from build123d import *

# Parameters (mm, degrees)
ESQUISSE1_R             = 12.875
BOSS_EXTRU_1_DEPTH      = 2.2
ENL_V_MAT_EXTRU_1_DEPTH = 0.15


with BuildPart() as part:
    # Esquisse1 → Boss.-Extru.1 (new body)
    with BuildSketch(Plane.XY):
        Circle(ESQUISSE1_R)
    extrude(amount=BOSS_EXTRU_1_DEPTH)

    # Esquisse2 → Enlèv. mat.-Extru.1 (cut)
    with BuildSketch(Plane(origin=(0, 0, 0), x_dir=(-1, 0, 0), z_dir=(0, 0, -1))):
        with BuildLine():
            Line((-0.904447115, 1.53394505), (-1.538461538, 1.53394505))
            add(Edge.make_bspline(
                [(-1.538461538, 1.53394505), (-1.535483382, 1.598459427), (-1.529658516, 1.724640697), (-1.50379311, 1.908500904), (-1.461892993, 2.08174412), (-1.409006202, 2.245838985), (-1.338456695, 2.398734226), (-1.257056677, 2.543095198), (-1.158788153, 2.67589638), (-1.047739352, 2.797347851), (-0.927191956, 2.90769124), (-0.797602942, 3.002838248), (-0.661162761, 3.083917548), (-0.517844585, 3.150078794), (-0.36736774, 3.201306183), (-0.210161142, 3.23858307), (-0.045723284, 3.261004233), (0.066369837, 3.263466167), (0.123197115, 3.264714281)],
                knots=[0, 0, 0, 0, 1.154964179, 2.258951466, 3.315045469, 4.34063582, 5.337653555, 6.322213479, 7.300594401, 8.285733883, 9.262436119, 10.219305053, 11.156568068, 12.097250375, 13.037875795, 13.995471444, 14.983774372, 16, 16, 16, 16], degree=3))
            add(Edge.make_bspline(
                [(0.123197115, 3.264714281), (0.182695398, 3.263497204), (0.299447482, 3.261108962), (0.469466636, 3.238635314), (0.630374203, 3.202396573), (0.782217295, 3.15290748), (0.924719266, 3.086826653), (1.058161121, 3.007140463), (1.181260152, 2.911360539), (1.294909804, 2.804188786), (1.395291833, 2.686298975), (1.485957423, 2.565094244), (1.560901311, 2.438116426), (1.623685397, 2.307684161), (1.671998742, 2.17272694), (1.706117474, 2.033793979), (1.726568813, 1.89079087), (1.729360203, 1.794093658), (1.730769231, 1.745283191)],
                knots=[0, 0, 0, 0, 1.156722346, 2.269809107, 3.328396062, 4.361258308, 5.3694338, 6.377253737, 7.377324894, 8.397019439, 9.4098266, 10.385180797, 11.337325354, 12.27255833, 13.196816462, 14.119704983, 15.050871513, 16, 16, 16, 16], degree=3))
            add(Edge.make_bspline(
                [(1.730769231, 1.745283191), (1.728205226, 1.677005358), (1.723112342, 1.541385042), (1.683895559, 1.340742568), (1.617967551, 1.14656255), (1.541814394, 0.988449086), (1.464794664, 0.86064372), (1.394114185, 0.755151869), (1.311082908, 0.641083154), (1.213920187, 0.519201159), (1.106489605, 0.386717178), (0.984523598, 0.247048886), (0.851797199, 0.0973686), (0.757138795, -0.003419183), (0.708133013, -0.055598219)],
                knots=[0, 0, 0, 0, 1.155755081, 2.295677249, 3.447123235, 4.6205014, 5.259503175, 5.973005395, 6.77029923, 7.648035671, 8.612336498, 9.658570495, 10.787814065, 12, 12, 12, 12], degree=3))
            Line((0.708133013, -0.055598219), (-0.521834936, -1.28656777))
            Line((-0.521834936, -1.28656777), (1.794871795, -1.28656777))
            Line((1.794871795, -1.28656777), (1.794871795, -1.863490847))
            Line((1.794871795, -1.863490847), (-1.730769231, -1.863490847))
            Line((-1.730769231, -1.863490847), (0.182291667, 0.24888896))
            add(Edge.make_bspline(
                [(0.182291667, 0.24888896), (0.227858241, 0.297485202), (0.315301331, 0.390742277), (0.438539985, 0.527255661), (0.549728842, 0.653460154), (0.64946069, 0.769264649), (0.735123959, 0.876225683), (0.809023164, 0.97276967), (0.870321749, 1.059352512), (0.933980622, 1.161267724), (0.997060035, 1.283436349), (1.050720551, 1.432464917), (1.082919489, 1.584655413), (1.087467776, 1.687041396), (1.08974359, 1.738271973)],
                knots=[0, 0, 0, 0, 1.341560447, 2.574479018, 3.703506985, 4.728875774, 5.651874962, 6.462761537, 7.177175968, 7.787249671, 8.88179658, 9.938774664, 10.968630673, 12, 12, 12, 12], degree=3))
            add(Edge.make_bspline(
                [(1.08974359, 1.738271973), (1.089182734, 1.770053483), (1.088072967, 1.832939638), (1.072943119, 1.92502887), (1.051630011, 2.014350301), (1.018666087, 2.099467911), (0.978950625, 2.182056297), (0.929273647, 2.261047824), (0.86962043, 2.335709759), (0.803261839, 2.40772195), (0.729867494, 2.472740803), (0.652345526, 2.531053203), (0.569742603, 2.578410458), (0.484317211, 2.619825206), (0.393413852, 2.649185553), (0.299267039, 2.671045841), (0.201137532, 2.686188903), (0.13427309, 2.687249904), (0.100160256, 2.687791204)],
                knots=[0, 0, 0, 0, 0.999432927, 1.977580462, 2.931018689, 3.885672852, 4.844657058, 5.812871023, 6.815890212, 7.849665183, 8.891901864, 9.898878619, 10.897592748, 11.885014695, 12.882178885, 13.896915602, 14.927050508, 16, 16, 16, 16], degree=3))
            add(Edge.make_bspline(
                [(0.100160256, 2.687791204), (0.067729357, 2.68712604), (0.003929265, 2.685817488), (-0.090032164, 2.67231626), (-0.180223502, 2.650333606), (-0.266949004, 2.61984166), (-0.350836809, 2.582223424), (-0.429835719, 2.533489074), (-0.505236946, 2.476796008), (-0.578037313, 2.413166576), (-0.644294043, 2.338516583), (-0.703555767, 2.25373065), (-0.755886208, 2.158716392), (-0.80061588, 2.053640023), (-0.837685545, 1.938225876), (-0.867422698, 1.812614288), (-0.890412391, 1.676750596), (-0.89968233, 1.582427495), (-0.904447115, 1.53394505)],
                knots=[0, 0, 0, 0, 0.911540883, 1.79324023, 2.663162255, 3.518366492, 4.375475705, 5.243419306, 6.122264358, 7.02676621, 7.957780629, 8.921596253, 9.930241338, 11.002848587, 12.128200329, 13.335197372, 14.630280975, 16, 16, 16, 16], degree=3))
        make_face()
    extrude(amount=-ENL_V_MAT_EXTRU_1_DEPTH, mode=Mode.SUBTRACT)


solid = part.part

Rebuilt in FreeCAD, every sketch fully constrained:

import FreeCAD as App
import Part
import Sketcher
Q = App.Units.Quantity

doc = App.newDocument("Part")
params = doc.addObject("Spreadsheet::Sheet", "Params")
for row, (alias, value) in enumerate([
    ("sketch1_diameter", "25.75 mm"),
    ("pad1_length", "2.2 mm"),
    ("pocket1_length", "0.15 mm"),
], start=1):
    params.set(f"A{row}", alias)
    params.set(f"B{row}", "=" + value)
    params.setAlias(f"B{row}", alias)

body = doc.addObject("PartDesign::Body", "Body")

sketch1 = doc.addObject("Sketcher::SketchObject", "Sketch")
body.addObject(sketch1)
sketch1.AttachmentSupport = (doc.XY_Plane, [""])
sketch1.MapMode = "FlatFace"
sketch1.addGeometry(Part.Circle(App.Vector(0, 0, 0), App.Vector(0, 0, 1), 13), False)
sketch1.addConstraint(Sketcher.Constraint("Coincident", 0, 3, -1, 1))
sketch1.addConstraint(Sketcher.Constraint("Diameter", 0, Q("25.75 mm")))
sketch1.setExpression("Constraints[1]", "Params.sketch1_diameter")
pad1 = doc.addObject("PartDesign::Pad", "Pad")
body.addObject(pad1)
pad1.Profile = sketch1
pad1.setExpression("Length", "Params.pad1_length")

sketch2 = doc.addObject("Sketcher::SketchObject", "Sketch001")
body.addObject(sketch2)
sketch2.AttachmentSupport = (doc.XY_Plane, [""])
sketch2.MapMode = "FlatFace"
sketch2.addGeometry(Part.LineSegment(App.Vector(1.538462, 1.533945, 0), App.Vector(0.904447, 1.533945, 0)), False)
sketch2.addGeometry(Part.BSplineCurve([App.Vector(-0.10016, 2.687791, 0), App.Vector(-0.067729, 2.687126, 0), App.Vector(-0.003929, 2.685817, 0), App.Vector(0.090032, 2.672316, 0), App.Vector(0.180224, 2.650334, 0), App.Vector(0.266949, 2.619842, 0), App.Vector(0.350837, 2.582223, 0), App.Vector(0.429836, 2.533489, 0), App.Vector(0.505237, 2.476796, 0), App.Vector(0.578037, 2.413167, 0), App.Vector(0.644294, 2.338517, 0), App.Vector(0.703556, 2.253731, 0), App.Vector(0.755886, 2.158716, 0), App.Vector(0.800616, 2.05364, 0), App.Vector(0.837686, 1.938226, 0), App.Vector(0.867423, 1.812614, 0), App.Vector(0.890412, 1.676751, 0), App.Vector(0.899682, 1.582427, 0), App.Vector(0.904447, 1.533945, 0)], [4, 1, 1, 1, 1, 1, 1, 1, 1, 1, 1, 1, 1, 1, 1, 1, 4], [0, 0.911540883, 1.79324023, 2.663162255, 3.518366492, 4.375475705, 5.243419306, 6.122264358, 7.02676621, 7.957780629, 8.921596253, 9.930241338, 11.002848587, 12.128200329, 13.335197372, 14.630280975, 16], False, 3, [1, 1, 1, 1, 1, 1, 1, 1, 1, 1, 1, 1, 1, 1, 1, 1, 1, 1, 1], False), False)
sketch2.addGeometry(Part.BSplineCurve([App.Vector(-1.089744, 1.738272, 0), App.Vector(-1.089183, 1.770053, 0), App.Vector(-1.088073, 1.83294, 0), App.Vector(-1.072943, 1.925029, 0), App.Vector(-1.05163, 2.01435, 0), App.Vector(-1.018666, 2.099468, 0), App.Vector(-0.978951, 2.182056, 0), App.Vector(-0.929274, 2.261048, 0), App.Vector(-0.86962, 2.33571, 0), App.Vector(-0.803262, 2.407722, 0), App.Vector(-0.729867, 2.472741, 0), App.Vector(-0.652346, 2.531053, 0), App.Vector(-0.569743, 2.57841, 0), App.Vector(-0.484317, 2.619825, 0), App.Vector(-0.393414, 2.649186, 0), App.Vector(-0.299267, 2.671046, 0), App.Vector(-0.201138, 2.686189, 0), App.Vector(-0.134273, 2.68725, 0), App.Vector(-0.10016, 2.687791, 0)], [4, 1, 1, 1, 1, 1, 1, 1, 1, 1, 1, 1, 1, 1, 1, 1, 4], [0, 0.999432927, 1.977580462, 2.931018689, 3.885672852, 4.844657058, 5.812871023, 6.815890212, 7.849665183, 8.891901864, 9.898878619, 10.897592748, 11.885014695, 12.882178885, 13.896915602, 14.927050508, 16], False, 3, [1, 1, 1, 1, 1, 1, 1, 1, 1, 1, 1, 1, 1, 1, 1, 1, 1, 1, 1], False), False)
sketch2.addGeometry(Part.BSplineCurve([App.Vector(-0.182292, 0.248889, 0), App.Vector(-0.227858, 0.297485, 0), App.Vector(-0.315301, 0.390742, 0), App.Vector(-0.43854, 0.527256, 0), App.Vector(-0.549729, 0.65346, 0), App.Vector(-0.649461, 0.769265, 0), App.Vector(-0.735124, 0.876226, 0), App.Vector(-0.809023, 0.97277, 0), App.Vector(-0.870322, 1.059353, 0), App.Vector(-0.933981, 1.161268, 0), App.Vector(-0.99706, 1.283436, 0), App.Vector(-1.050721, 1.432465, 0), App.Vector(-1.082919, 1.584655, 0), App.Vector(-1.087468, 1.687041, 0), App.Vector(-1.089744, 1.738272, 0)], [4, 1, 1, 1, 1, 1, 1, 1, 1, 1, 1, 1, 4], [0, 1.341560447, 2.574479018, 3.703506985, 4.728875774, 5.651874962, 6.462761537, 7.177175968, 7.787249671, 8.88179658, 9.938774664, 10.968630673, 12], False, 3, [1, 1, 1, 1, 1, 1, 1, 1, 1, 1, 1, 1, 1, 1, 1], False), False)
sketch2.addGeometry(Part.LineSegment(App.Vector(-0.182292, 0.248889, 0), App.Vector(1.730769, -1.863491, 0)), False)
sketch2.addGeometry(Part.LineSegment(App.Vector(1.730769, -1.863491, 0), App.Vector(-1.794872, -1.863491, 0)), False)
sketch2.addGeometry(Part.LineSegment(App.Vector(-1.794872, -1.863491, 0), App.Vector(-1.794872, -1.286568, 0)), False)
sketch2.addGeometry(Part.LineSegment(App.Vector(-1.794872, -1.286568, 0), App.Vector(0.521835, -1.286568, 0)), False)
sketch2.addGeometry(Part.LineSegment(App.Vector(0.521835, -1.286568, 0), App.Vector(-0.708133, -0.055598, 0)), False)
sketch2.addGeometry(Part.BSplineCurve([App.Vector(-1.730769, 1.745283, 0), App.Vector(-1.728205, 1.677005, 0), App.Vector(-1.723112, 1.541385, 0), App.Vector(-1.683896, 1.340743, 0), App.Vector(-1.617968, 1.146563, 0), App.Vector(-1.541814, 0.988449, 0), App.Vector(-1.464795, 0.860644, 0), App.Vector(-1.394114, 0.755152, 0), App.Vector(-1.311083, 0.641083, 0), App.Vector(-1.21392, 0.519201, 0), App.Vector(-1.10649, 0.386717, 0), App.Vector(-0.984524, 0.247049, 0), App.Vector(-0.851797, 0.097369, 0), App.Vector(-0.757139, -0.003419, 0), App.Vector(-0.708133, -0.055598, 0)], [4, 1, 1, 1, 1, 1, 1, 1, 1, 1, 1, 1, 4], [0, 1.155755081, 2.295677249, 3.447123235, 4.6205014, 5.259503175, 5.973005395, 6.77029923, 7.648035671, 8.612336498, 9.658570495, 10.787814065, 12], False, 3, [1, 1, 1, 1, 1, 1, 1, 1, 1, 1, 1, 1, 1, 1, 1], False), False)
sketch2.addGeometry(Part.BSplineCurve([App.Vector(-0.123197, 3.264714, 0), App.Vector(-0.182695, 3.263497, 0), App.Vector(-0.299447, 3.261109, 0), App.Vector(-0.469467, 3.238635, 0), App.Vector(-0.630374, 3.202397, 0), App.Vector(-0.782217, 3.152907, 0), App.Vector(-0.924719, 3.086827, 0), App.Vector(-1.058161, 3.00714, 0), App.Vector(-1.18126, 2.911361, 0), App.Vector(-1.29491, 2.804189, 0), App.Vector(-1.395292, 2.686299, 0), App.Vector(-1.485957, 2.565094, 0), App.Vector(-1.560901, 2.438116, 0), App.Vector(-1.623685, 2.307684, 0), App.Vector(-1.671999, 2.172727, 0), App.Vector(-1.706117, 2.033794, 0), App.Vector(-1.726569, 1.890791, 0), App.Vector(-1.72936, 1.794094, 0), App.Vector(-1.730769, 1.745283, 0)], [4, 1, 1, 1, 1, 1, 1, 1, 1, 1, 1, 1, 1, 1, 1, 1, 4], [0, 1.156722346, 2.269809107, 3.328396062, 4.361258308, 5.3694338, 6.377253737, 7.377324894, 8.397019439, 9.4098266, 10.385180797, 11.337325354, 12.27255833, 13.196816462, 14.119704983, 15.050871513, 16], False, 3, [1, 1, 1, 1, 1, 1, 1, 1, 1, 1, 1, 1, 1, 1, 1, 1, 1, 1, 1], False), False)
sketch2.addGeometry(Part.BSplineCurve([App.Vector(1.538462, 1.533945, 0), App.Vector(1.535483, 1.598459, 0), App.Vector(1.529659, 1.724641, 0), App.Vector(1.503793, 1.908501, 0), App.Vector(1.461893, 2.081744, 0), App.Vector(1.409006, 2.245839, 0), App.Vector(1.338457, 2.398734, 0), App.Vector(1.257057, 2.543095, 0), App.Vector(1.158788, 2.675896, 0), App.Vector(1.047739, 2.797348, 0), App.Vector(0.927192, 2.907691, 0), App.Vector(0.797603, 3.002838, 0), App.Vector(0.661163, 3.083918, 0), App.Vector(0.517845, 3.150079, 0), App.Vector(0.367368, 3.201306, 0), App.Vector(0.210161, 3.238583, 0), App.Vector(0.045723, 3.261004, 0), App.Vector(-0.06637, 3.263466, 0), App.Vector(-0.123197, 3.264714, 0)], [4, 1, 1, 1, 1, 1, 1, 1, 1, 1, 1, 1, 1, 1, 1, 1, 4], [0, 1.154964179, 2.258951466, 3.315045469, 4.34063582, 5.337653555, 6.322213479, 7.300594401, 8.285733883, 9.262436119, 10.219305053, 11.156568068, 12.097250375, 13.037875795, 13.995471444, 14.983774372, 16], False, 3, [1, 1, 1, 1, 1, 1, 1, 1, 1, 1, 1, 1, 1, 1, 1, 1, 1, 1, 1], False), False)
sketch2.addConstraint(Sketcher.Constraint("Block", 1))
sketch2.addConstraint(Sketcher.Constraint("Block", 2))
sketch2.addConstraint(Sketcher.Constraint("Block", 3))
sketch2.addConstraint(Sketcher.Constraint("Block", 9))
sketch2.addConstraint(Sketcher.Constraint("Block", 10))
sketch2.addConstraint(Sketcher.Constraint("Block", 11))
sketch2.addConstraint(Sketcher.Constraint("Coincident", 0, 2, 1, 2))
sketch2.addConstraint(Sketcher.Constraint("Coincident", 3, 1, 4, 1))
sketch2.addConstraint(Sketcher.Constraint("Coincident", 4, 2, 5, 1))
sketch2.addConstraint(Sketcher.Constraint("Coincident", 5, 2, 6, 1))
sketch2.addConstraint(Sketcher.Constraint("Coincident", 6, 2, 7, 1))
sketch2.addConstraint(Sketcher.Constraint("Coincident", 7, 2, 8, 1))
sketch2.addConstraint(Sketcher.Constraint("Coincident", 8, 2, 9, 2))
sketch2.addConstraint(Sketcher.Constraint("Coincident", 11, 1, 0, 1))
sketch2.addConstraint(Sketcher.Constraint("Horizontal", 5))
sketch2.addConstraint(Sketcher.Constraint("Vertical", 6))
sketch2.addConstraint(Sketcher.Constraint("Horizontal", 7))
sketch2.addConstraint(Sketcher.Constraint("DistanceX", 5, 2, 5, 1, Q("3.525641 mm")))
sketch2.addConstraint(Sketcher.Constraint("DistanceX", 7, 1, 7, 2, Q("2.316707 mm")))
sketch2.addConstraint(Sketcher.Constraint("DistanceY", 6, 1, 6, 2, Q("0.576923 mm")))
sketch2.addConstraint(Sketcher.Constraint("DistanceX", -1, 1, 4, 2, Q("1.730769 mm")))
sketch2.addConstraint(Sketcher.Constraint("DistanceY", 4, 2, -1, 1, Q("1.863491 mm")))
pocket1 = doc.addObject("PartDesign::Pocket", "Pocket")
body.addObject(pocket1)
pocket1.Profile = sketch2
pocket1.setExpression("Length", "Params.pocket1_length")
pocket1.Reversed = True

doc.recompute()
